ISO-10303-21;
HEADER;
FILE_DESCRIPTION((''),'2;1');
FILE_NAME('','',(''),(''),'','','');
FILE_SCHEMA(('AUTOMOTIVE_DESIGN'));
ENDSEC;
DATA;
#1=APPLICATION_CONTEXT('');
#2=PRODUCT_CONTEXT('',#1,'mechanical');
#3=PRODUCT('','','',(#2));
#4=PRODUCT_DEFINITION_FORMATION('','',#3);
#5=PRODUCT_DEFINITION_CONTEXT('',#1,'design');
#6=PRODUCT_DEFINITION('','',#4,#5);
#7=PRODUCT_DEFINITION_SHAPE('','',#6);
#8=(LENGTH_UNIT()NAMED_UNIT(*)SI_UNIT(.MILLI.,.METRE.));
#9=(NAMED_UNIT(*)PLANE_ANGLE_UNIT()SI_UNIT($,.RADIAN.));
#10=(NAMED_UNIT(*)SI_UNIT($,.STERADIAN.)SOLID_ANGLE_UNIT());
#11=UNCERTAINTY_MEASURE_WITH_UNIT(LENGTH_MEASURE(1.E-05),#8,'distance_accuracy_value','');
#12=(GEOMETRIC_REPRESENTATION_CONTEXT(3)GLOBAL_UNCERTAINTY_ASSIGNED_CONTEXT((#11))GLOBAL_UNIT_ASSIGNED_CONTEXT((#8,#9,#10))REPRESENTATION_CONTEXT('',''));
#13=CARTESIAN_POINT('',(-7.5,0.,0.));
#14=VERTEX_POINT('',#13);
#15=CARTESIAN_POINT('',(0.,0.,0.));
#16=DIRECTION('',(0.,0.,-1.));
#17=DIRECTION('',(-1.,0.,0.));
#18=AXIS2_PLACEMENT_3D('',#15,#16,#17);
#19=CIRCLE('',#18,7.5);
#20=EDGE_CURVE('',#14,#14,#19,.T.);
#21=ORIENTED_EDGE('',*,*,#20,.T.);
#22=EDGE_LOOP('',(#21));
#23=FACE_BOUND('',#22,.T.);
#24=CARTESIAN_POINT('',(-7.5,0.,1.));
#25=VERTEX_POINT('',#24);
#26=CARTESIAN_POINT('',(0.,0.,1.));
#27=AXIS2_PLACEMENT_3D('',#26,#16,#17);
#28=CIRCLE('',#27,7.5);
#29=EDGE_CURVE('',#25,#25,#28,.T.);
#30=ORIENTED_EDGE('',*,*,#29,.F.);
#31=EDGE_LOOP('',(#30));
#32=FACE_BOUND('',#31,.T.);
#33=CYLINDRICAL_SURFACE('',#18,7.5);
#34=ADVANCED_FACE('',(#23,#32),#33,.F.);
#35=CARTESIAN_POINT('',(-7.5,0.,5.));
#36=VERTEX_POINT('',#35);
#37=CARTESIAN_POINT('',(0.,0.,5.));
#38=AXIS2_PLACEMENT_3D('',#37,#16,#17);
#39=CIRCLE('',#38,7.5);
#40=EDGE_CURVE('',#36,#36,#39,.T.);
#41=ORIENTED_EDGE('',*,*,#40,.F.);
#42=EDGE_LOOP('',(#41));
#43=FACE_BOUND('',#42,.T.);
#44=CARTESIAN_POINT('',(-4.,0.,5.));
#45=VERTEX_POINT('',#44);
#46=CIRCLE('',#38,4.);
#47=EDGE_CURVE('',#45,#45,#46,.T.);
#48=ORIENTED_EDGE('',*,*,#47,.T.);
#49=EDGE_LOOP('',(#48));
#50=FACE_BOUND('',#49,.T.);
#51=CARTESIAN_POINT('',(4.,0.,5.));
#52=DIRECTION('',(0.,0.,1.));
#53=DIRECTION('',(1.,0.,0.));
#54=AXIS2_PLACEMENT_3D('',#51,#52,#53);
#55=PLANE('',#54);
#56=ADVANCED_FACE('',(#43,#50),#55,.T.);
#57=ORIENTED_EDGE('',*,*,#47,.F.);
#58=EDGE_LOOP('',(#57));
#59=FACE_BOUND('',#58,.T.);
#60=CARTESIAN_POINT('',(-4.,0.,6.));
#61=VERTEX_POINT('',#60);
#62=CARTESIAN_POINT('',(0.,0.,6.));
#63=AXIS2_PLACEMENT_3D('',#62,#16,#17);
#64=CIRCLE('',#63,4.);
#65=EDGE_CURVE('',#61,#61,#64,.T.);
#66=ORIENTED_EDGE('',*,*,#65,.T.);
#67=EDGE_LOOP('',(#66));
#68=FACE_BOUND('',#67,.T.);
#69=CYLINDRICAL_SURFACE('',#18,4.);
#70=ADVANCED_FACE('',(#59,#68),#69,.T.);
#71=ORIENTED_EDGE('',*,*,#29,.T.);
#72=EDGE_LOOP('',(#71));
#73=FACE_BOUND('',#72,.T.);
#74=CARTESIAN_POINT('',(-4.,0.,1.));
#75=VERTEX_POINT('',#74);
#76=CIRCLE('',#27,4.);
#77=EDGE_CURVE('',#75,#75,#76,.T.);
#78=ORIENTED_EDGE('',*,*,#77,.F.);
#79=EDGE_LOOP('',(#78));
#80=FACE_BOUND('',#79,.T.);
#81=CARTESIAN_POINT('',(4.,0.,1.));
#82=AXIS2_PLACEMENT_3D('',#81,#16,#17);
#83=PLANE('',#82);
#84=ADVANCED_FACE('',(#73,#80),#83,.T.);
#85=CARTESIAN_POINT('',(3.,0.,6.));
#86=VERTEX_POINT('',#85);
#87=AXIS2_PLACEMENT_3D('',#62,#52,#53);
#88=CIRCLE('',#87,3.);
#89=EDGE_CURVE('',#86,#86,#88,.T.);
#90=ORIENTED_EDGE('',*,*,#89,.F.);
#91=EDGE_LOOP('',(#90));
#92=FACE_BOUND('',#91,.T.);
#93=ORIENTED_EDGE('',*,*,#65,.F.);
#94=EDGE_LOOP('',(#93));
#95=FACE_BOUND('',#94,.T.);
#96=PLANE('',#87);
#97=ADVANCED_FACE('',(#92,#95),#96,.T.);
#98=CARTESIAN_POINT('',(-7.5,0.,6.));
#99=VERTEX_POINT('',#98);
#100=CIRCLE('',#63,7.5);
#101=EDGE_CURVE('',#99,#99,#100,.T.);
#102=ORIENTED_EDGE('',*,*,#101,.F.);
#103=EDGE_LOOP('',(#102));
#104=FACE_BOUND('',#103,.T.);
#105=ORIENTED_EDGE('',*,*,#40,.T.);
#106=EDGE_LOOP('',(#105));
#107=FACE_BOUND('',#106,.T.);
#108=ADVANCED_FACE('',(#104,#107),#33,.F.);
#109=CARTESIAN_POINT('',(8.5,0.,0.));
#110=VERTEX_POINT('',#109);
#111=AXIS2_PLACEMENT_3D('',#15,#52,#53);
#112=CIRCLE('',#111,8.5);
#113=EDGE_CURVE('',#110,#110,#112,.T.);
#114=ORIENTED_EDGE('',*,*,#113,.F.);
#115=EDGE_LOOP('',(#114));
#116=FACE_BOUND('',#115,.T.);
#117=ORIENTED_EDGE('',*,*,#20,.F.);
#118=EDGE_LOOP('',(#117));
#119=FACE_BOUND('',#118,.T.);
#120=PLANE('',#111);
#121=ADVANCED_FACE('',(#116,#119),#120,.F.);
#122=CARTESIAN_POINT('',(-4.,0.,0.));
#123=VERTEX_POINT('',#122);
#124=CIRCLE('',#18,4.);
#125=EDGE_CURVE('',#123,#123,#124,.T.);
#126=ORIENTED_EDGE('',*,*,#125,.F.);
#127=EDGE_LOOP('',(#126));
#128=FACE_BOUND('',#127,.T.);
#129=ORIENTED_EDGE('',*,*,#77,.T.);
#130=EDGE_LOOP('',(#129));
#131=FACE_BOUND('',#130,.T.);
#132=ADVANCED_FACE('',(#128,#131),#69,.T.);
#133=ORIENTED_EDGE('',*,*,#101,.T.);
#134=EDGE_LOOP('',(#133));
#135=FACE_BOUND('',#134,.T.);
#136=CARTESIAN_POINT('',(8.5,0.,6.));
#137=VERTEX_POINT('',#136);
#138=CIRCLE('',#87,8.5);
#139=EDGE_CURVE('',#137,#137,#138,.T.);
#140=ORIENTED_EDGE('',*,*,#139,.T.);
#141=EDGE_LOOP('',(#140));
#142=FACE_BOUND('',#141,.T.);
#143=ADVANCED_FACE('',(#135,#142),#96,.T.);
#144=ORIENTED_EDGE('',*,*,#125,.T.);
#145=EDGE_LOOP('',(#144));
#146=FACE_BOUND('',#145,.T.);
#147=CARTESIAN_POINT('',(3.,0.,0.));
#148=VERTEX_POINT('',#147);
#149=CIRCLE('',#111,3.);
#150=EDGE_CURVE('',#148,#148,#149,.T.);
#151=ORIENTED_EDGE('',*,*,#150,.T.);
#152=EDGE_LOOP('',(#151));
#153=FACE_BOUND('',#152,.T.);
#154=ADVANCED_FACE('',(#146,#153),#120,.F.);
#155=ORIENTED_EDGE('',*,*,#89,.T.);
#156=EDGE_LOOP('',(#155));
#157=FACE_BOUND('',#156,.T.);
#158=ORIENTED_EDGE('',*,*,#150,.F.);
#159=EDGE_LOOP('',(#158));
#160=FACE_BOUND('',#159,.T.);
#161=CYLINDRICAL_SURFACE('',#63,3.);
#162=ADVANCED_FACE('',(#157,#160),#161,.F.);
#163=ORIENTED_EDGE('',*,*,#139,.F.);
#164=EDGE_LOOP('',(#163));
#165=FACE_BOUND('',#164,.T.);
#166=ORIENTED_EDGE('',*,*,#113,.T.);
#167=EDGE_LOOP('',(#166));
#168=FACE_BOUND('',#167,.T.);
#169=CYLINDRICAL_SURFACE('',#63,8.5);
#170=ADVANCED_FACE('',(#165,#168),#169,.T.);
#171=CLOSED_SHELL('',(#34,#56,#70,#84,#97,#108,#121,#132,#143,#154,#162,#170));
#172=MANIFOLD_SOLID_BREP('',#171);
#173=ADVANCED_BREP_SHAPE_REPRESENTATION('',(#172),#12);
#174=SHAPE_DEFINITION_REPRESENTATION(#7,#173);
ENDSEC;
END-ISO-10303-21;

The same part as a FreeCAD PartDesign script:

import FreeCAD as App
import Part
import Sketcher

V = App.Vector


def add_polygon(sketch, points):
    """Adds a closed chain of lines whose ends are joined by coincident constraints."""
    first, n = sketch.GeometryCount, len(points)
    for a, b in zip(points, points[1:] + points[:1]):
        sketch.addGeometry(Part.LineSegment(App.Vector(*a, 0), App.Vector(*b, 0)), False)
    for i in range(n):
        sketch.addConstraint(Sketcher.Constraint("Coincident", first + i, 2, first + (i + 1) % n, 1))

doc = App.newDocument("Part")
body = doc.addObject("PartDesign::Body", "Body")

sketch1 = doc.addObject("Sketcher::SketchObject", "Sketch")
body.addObject(sketch1)
sketch1.AttachmentSupport = (doc.XY_Plane, [""])
sketch1.MapMode = "FlatFace"
sketch1.addGeometry([
    Part.Circle(V(0, 0, 0), V(0, 0, 1), 8.5),
    Part.Circle(V(0, 0, 0), V(0, 0, 1), 3),
], False)
sketch1.addConstraint([
    Sketcher.Constraint("Coincident", 0, 3, -1, 1),
    Sketcher.Constraint("Coincident", 1, 3, -1, 1),
    Sketcher.Constraint("Diameter", 0, 17.0),
    Sketcher.Constraint("Diameter", 1, 6.0),
])
pad1 = doc.addObject("PartDesign::Pad", "Pad")
body.addObject(pad1)
pad1.Profile = sketch1
pad1.Length = 6

sketch2 = doc.addObject("Sketcher::SketchObject", "Sketch001")
body.addObject(sketch2)
sketch2.AttachmentSupport = (doc.XZ_Plane, [""])
sketch2.MapMode = "FlatFace"
add_polygon(sketch2, [(4, 0), (4, 1), (7.5, 1), (7.5, 0)])
sketch2.addConstraint([
    Sketcher.Constraint("Vertical", 0),
    Sketcher.Constraint("Horizontal", 1),
    Sketcher.Constraint("Vertical", 2),
    Sketcher.Constraint("Horizontal", 3),
    Sketcher.Constraint("PointOnObject", 2, 2, -1),
    Sketcher.Constraint("DistanceY", 0, 1, 0, 2, 1.0),
    Sketcher.Constraint("DistanceX", 1, 1, 1, 2, 3.5),
    Sketcher.Constraint("DistanceX", -1, 1, 0, 2, 4.0),
])
groove = doc.addObject("PartDesign::Groove", "Groove")
body.addObject(groove)
groove.Profile = sketch2
groove.ReferenceAxis = (sketch2, ["V_Axis"])
groove.Angle = 360

sketch3 = doc.addObject("Sketcher::SketchObject", "Sketch002")
body.addObject(sketch3)
sketch3.AttachmentSupport = (doc.XZ_Plane, [""])
sketch3.MapMode = "FlatFace"
add_polygon(sketch3, [(4, 5), (4, 6), (7.5, 6), (7.5, 5)])
sketch3.addConstraint([
    Sketcher.Constraint("Vertical", 0),
    Sketcher.Constraint("Horizontal", 1),
    Sketcher.Constraint("Vertical", 2),
    Sketcher.Constraint("Horizontal", 3),
    Sketcher.Constraint("DistanceY", 0, 1, 0, 2, 1.0),
    Sketcher.Constraint("DistanceX", 1, 1, 1, 2, 3.5),
    Sketcher.Constraint("DistanceX", -1, 1, 0, 2, 4.0),
    Sketcher.Constraint("DistanceY", -1, 1, 0, 2, 6.0),
])
groove2 = doc.addObject("PartDesign::Groove", "Groove001")
body.addObject(groove2)
groove2.Profile = sketch3
groove2.ReferenceAxis = (sketch3, ["V_Axis"])
groove2.Angle = 360

doc.recompute()
